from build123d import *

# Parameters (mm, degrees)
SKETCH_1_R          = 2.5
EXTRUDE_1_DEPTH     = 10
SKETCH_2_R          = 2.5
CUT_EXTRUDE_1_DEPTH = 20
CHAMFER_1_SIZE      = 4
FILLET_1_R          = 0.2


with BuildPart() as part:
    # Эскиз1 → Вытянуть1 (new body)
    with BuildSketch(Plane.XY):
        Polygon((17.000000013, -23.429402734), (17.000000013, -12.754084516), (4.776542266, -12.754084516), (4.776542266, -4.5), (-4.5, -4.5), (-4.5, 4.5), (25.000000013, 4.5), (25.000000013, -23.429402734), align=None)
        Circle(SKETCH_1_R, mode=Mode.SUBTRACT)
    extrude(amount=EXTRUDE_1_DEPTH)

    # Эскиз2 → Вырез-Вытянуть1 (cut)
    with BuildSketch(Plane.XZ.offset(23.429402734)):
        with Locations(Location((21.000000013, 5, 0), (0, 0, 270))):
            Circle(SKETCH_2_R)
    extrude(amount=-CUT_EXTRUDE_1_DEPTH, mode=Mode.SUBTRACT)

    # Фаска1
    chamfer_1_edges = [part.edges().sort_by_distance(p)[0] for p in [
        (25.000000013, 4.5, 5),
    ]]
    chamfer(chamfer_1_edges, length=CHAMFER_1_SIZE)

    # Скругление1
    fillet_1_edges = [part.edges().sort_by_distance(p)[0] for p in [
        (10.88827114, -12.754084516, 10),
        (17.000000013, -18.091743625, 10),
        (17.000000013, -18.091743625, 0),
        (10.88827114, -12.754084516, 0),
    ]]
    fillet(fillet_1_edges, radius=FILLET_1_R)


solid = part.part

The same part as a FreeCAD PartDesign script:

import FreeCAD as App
import Part
import Sketcher
from FreeCAD import Vector
Q = App.Units.Quantity


def edges_at(feature, points):
    """Names of the edges that pass closest to the given points."""
    edges = feature.Shape.Edges
    near = lambda p: min(range(len(edges)), key=lambda i: edges[i].distToShape(Part.Vertex(*p))[0])
    return sorted({f"Edge{near(p) + 1}" for p in points})


def add_polygon(sketch, points):
    """Adds a closed chain of lines whose ends are joined by coincident constraints."""
    first, n = sketch.GeometryCount, len(points)
    for a, b in zip(points, points[1:] + points[:1]):
        sketch.addGeometry(Part.LineSegment(App.Vector(*a, 0), App.Vector(*b, 0)), False)
    for i in range(n):
        sketch.addConstraint(Sketcher.Constraint("Coincident", first + i, 2, first + (i + 1) % n, 1))

doc = App.newDocument("Part")
body = doc.addObject("PartDesign::Body", "Body")

# Sketch on XY plane
sketch1 = body.newObject("Sketcher::SketchObject", "Sketch")
sketch1.AttachmentSupport = (doc.getObject("XY_Plane"), [""])
sketch1.MapMode = "FlatFace"
add_polygon(sketch1, [(17, -12.8), (17, -23.4), (25, -23.4), (25, 4.5), (-4.5, 4.5), (-4.5, -4.5), (4.8, -4.5), (4.8, -12.8)])  # lines 0-7
sketch1.addGeometry(Part.Circle(Vector(0, 0, 0), Vector(0, 0, 1), 2.5), False)  # 8
sketch1.addConstraint([
    Sketcher.Constraint("Vertical", 0),
    Sketcher.Constraint("Horizontal", 1),
    Sketcher.Constraint("Vertical", 2),
    Sketcher.Constraint("Horizontal", 3),
    Sketcher.Constraint("Vertical", 4),
    Sketcher.Constraint("Horizontal", 5),
    Sketcher.Constraint("Vertical", 6),
    Sketcher.Constraint("Horizontal", 7),
    Sketcher.Constraint("Coincident", 8, 3, -1, 1),
    Sketcher.Constraint("Diameter", 8, Q("5 mm")),
    Sketcher.Constraint("DistanceX", 1, 1, 1, 2, Q("8 mm")),
    Sketcher.Constraint("DistanceY", 4, 2, 4, 1, Q("9 mm")),
    Sketcher.Constraint("DistanceX", 3, 2, 3, 1, Q("29.5 mm")),
    Sketcher.Constraint("DistanceX", -1, 1, 0, 2, Q("17 mm")),
    Sketcher.Constraint("DistanceY", -1, 1, 2, 2, Q("4.5 mm")),
    Sketcher.Constraint("DistanceY", 0, 2, 0, 1, Q("10.675318 mm")),
    Sketcher.Constraint("DistanceX", 5, 1, 5, 2, Q("9.276542 mm")),
    Sketcher.Constraint("DistanceY", 2, 1, 2, 2, Q("27.929403 mm")),
])
pad1 = body.newObject("PartDesign::Pad", "Pad")
pad1.Profile = sketch1
pad1.Length = 10

# Sketch on XZ plane
sketch2 = body.newObject("Sketcher::SketchObject", "Sketch001")
sketch2.AttachmentSupport = (doc.getObject("XZ_Plane"), [""])
sketch2.MapMode = "FlatFace"
sketch2.AttachmentOffset = App.Placement(Vector(0, 0, 23.429403), App.Rotation())
sketch2.addGeometry(Part.Circle(Vector(21, 5, 0), Vector(0, 0, 1), 2.5), False)
sketch2.addConstraint([
    Sketcher.Constraint("Diameter", 0, Q("5 mm")),
    Sketcher.Constraint("DistanceX", -1, 1, 0, 3, Q("21 mm")),
    Sketcher.Constraint("DistanceY", -1, 1, 0, 3, Q("5 mm")),
])
pocket1 = body.newObject("PartDesign::Pocket", "Pocket")
pocket1.Profile = sketch2
pocket1.Length = 20
doc.recompute()

chamfer = body.newObject("PartDesign::Chamfer", "Chamfer")
chamfer.Base = (pocket1, edges_at(pocket1, [(25, 4.5, 5)]))
chamfer.Size = 4
doc.recompute()

fillet = body.newObject("PartDesign::Fillet", "Fillet")
fillet.Base = (chamfer, edges_at(chamfer, [
    (10.888, -12.754, 10),
    (17, -18.092, 10),
    (17, -18.092, 0),
    (10.888, -12.754, 0),
]))
fillet.Radius = 0.2

doc.recompute()
